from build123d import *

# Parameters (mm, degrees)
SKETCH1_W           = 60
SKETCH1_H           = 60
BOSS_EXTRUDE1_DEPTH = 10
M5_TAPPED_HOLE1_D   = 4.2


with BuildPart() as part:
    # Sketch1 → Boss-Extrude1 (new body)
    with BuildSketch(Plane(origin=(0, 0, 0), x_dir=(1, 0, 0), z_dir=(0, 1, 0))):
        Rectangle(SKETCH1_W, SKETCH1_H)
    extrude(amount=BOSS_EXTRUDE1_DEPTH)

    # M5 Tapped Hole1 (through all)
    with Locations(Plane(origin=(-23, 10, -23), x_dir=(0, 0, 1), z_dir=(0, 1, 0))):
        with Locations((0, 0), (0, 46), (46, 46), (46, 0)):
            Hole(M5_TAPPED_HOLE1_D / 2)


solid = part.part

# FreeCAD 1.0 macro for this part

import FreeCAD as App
import Part
import Sketcher
Q = App.Units.Quantity

doc = App.newDocument("Part")
body = doc.addObject("PartDesign::Body", "Body")

sketch1 = body.newObject("Sketcher::SketchObject", "Sketch")
sketch1.AttachmentSupport = (doc.getObject("XZ_Plane"), [""])
sketch1.MapMode = "FlatFace"
sketch1.addGeometry([
    Part.LineSegment(App.Vector(-30, -30, 0), App.Vector(-30, 30, 0)),
    Part.LineSegment(App.Vector(-30, 30, 0), App.Vector(30, 30, 0)),
    Part.LineSegment(App.Vector(30, 30, 0), App.Vector(30, -30, 0)),
    Part.LineSegment(App.Vector(30, -30, 0), App.Vector(-30, -30, 0)),
], False)
sketch1.addConstraint([
    Sketcher.Constraint("Coincident", 0, 2, 1, 1),
    Sketcher.Constraint("Coincident", 1, 2, 2, 1),
    Sketcher.Constraint("Coincident", 2, 2, 3, 1),
    Sketcher.Constraint("Coincident", 3, 2, 0, 1),
    Sketcher.Constraint("Vertical", 0),
    Sketcher.Constraint("Horizontal", 1),
    Sketcher.Constraint("Vertical", 2),
    Sketcher.Constraint("Horizontal", 3),
    Sketcher.Constraint("Symmetric", 0, 2, 2, 2, -1, 1),
    Sketcher.Constraint("Equal", 3, 0),
    Sketcher.Constraint("DistanceX", 1, 1, 1, 2, Q("60 mm")),
])
pad1 = body.newObject("PartDesign::Pad", "Pad")
pad1.Profile = sketch1
pad1.Length = 10
pad1.Reversed = True

sketch2 = body.newObject("Sketcher::SketchObject", "Sketch001")
sketch2.AttachmentSupport = (doc.getObject("XZ_Plane"), [""])
sketch2.MapMode = "FlatFace"
sketch2.AttachmentOffset = App.Placement(App.Vector(0, 0, -10), App.Rotation())
sketch2.addGeometry([
    Part.Circle(App.Vector(-23, -23, 0), App.Vector(0, 0, 1), 2.1),
    Part.Circle(App.Vector(23, -23, 0), App.Vector(0, 0, 1), 2.1),
    Part.Circle(App.Vector(23, 23, 0), App.Vector(0, 0, 1), 2.1),
    Part.Circle(App.Vector(-23, 23, 0), App.Vector(0, 0, 1), 2.1),
], False)
sketch2.addConstraint([
    Sketcher.Constraint("Equal", 0, 1),
    Sketcher.Constraint("Equal", 1, 2),
    Sketcher.Constraint("Equal", 2, 3),
    Sketcher.Constraint("Symmetric", 0, 3, 2, 3, -1, 1),
    Sketcher.Constraint("Symmetric", 1, 3, 3, 3, -1, 1),
    Sketcher.Constraint("Symmetric", 0, 3, 1, 3, -2),
    Sketcher.Constraint("Diameter", 0, Q("4.2 mm")),
    Sketcher.Constraint("DistanceX", 0, 3, -1, 1, Q("23 mm")),
    Sketcher.Constraint("DistanceY", 0, 3, -1, 1, Q("23 mm")),
])
doc.recompute()
hole = body.newObject("PartDesign::Hole", "Hole")
hole.Profile = sketch2
hole.ThreadType = "None"
hole.Diameter = 4.2
hole.DepthType = "ThroughAll"
hole.Reversed = True

doc.recompute()
